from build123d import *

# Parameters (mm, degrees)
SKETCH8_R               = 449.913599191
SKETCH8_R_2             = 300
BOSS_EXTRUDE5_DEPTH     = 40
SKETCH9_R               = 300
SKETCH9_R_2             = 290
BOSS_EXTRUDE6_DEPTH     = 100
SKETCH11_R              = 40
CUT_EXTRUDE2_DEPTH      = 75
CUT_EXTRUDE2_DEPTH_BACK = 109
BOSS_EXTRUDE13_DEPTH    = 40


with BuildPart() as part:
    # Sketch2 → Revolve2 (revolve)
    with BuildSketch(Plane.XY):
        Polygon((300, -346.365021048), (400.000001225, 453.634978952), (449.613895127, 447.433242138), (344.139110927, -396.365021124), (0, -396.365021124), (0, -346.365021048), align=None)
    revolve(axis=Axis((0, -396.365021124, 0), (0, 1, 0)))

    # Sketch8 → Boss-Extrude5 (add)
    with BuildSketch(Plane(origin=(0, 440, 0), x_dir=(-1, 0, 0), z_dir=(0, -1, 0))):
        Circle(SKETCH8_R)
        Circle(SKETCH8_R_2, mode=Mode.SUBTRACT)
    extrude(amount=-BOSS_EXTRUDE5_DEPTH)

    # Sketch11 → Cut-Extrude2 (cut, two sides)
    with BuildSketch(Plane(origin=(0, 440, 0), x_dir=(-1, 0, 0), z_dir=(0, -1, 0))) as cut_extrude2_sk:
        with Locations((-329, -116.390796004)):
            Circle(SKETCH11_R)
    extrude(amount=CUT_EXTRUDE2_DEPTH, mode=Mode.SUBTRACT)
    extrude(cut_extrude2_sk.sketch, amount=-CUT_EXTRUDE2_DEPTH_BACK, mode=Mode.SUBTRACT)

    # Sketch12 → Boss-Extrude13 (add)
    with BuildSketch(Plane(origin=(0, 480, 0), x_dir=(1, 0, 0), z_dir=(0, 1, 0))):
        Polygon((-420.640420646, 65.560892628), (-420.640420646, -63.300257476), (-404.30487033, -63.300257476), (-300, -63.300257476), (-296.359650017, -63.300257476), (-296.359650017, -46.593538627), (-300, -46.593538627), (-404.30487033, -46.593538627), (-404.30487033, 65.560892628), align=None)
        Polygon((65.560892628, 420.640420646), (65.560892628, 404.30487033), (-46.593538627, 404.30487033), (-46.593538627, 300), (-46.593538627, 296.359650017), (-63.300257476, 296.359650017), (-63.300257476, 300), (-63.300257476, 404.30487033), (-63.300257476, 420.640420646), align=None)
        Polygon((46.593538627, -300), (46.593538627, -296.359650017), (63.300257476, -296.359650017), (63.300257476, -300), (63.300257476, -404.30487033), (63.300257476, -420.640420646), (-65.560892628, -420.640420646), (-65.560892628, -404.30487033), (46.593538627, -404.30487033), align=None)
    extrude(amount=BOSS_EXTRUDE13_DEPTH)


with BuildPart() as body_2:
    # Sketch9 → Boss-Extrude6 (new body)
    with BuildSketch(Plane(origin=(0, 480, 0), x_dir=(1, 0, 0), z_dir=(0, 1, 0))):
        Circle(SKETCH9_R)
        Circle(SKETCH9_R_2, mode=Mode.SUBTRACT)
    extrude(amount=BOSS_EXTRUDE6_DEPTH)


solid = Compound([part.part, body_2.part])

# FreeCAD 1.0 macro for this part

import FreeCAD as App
import Part
import Sketcher

V = App.Vector


def add_polygon(sketch, points):
    """Adds a closed chain of lines whose ends are joined by coincident constraints."""
    first, n = sketch.GeometryCount, len(points)
    for a, b in zip(points, points[1:] + points[:1]):
        sketch.addGeometry(Part.LineSegment(App.Vector(*a, 0), App.Vector(*b, 0)), False)
    for i in range(n):
        sketch.addConstraint(Sketcher.Constraint("Coincident", first + i, 2, first + (i + 1) % n, 1))

doc = App.newDocument("Part")
body = doc.addObject("PartDesign::Body", "Body")

# Sketch on XY plane
sketch1 = body.newObject("Sketcher::SketchObject", "Sketch")
sketch1.AttachmentSupport = (doc.getObject("XY_Plane"), [""])
sketch1.MapMode = "FlatFace"
add_polygon(sketch1, [(400, 454), (300, -346), (0, -346), (0, -396), (344, -396), (450, 447)])  # lines 0-5
sketch1.addConstraint([
    Sketcher.Constraint("Horizontal", 1),
    Sketcher.Constraint("Vertical", 2),
    Sketcher.Constraint("Horizontal", 3),
    Sketcher.Constraint("PointOnObject", 1, 2, -2),
    Sketcher.Constraint("Parallel", 0, 4),
    Sketcher.Constraint("Perpendicular", 4, 5),
    Sketcher.Constraint("DistanceX", 1, 2, 1, 1, 300.0),
    Sketcher.Constraint("DistanceY", 2, 2, 2, 1, 50.0),
    Sketcher.Constraint("Distance", 5, 50.0),
    Sketcher.Constraint("DistanceX", -1, 1, 5, 2, 400.000001),
    Sketcher.Constraint("DistanceY", 0, 2, 5, 2, 800.0),
    Sketcher.Constraint("DistanceY", 0, 2, -1, 1, 346.365021),
])
revolution = body.newObject("PartDesign::Revolution", "Revolution")
revolution.Profile = sketch1
revolution.ReferenceAxis = (sketch1, ["V_Axis"])
revolution.Angle = 360

# Sketch on XZ plane
sketch2 = body.newObject("Sketcher::SketchObject", "Sketch001")
sketch2.AttachmentSupport = (doc.getObject("XZ_Plane"), [""])
sketch2.MapMode = "FlatFace"
sketch2.AttachmentOffset = App.Placement(V(0, 0, -440), App.Rotation())
sketch2.addGeometry([
    Part.Circle(V(0, 0, 0), V(0, 0, 1), 450),
    Part.Circle(V(0, 0, 0), V(0, 0, 1), 300),
], False)
sketch2.addConstraint([
    Sketcher.Constraint("Coincident", 0, 3, -1, 1),
    Sketcher.Constraint("Coincident", 1, 3, -1, 1),
    Sketcher.Constraint("Diameter", 1, 600.0),
    Sketcher.Constraint("Diameter", 0, 899.827198),
])
pad1 = body.newObject("PartDesign::Pad", "Pad")
pad1.Profile = sketch2
pad1.Length = 40
pad1.Reversed = True

# Sketch on XZ plane
sketch3 = body.newObject("Sketcher::SketchObject", "Sketch002")
sketch3.AttachmentSupport = (doc.getObject("XZ_Plane"), [""])
sketch3.MapMode = "FlatFace"
sketch3.AttachmentOffset = App.Placement(V(0, 0, -440), App.Rotation())
sketch3.addGeometry(Part.Circle(V(329, 116, 0), V(0, 0, 1), 40), False)
sketch3.addConstraint([
    Sketcher.Constraint("Diameter", 0, 80.0),
    Sketcher.Constraint("DistanceX", -1, 1, 0, 3, 329.0),
    Sketcher.Constraint("DistanceY", -1, 1, 0, 3, 116.390796),
])
pocket1 = body.newObject("PartDesign::Pocket", "Pocket")
pocket1.Profile = sketch3
pocket1.Type = "TwoLengths"
pocket1.Length = 75
pocket1.Length2 = 109
pocket1.Reversed = True

# Sketch on XZ plane
sketch4 = body.newObject("Sketcher::SketchObject", "Sketch003")
sketch4.AttachmentSupport = (doc.getObject("XZ_Plane"), [""])
sketch4.MapMode = "FlatFace"
sketch4.AttachmentOffset = App.Placement(V(0, 0, -480), App.Rotation())
add_polygon(sketch4, [(-421, -66), (-421, 63), (-296, 63), (-296, 47), (-404, 47), (-404, -66)])  # lines 0-5
add_polygon(sketch4, [(66, -404), (66, -421), (-63, -421), (-63, -296), (-47, -296), (-47, -404)])  # lines 6-11
add_polygon(sketch4, [(47, 296), (47, 404), (-66, 404), (-66, 421), (63, 421), (63, 296)])  # lines 12-17
sketch4.addConstraint([
    Sketcher.Constraint("Vertical", 0),
    Sketcher.Constraint("Horizontal", 1),
    Sketcher.Constraint("Vertical", 2),
    Sketcher.Constraint("Horizontal", 3),
    Sketcher.Constraint("Vertical", 4),
    Sketcher.Constraint("Horizontal", 5),
    Sketcher.Constraint("Vertical", 6),
    Sketcher.Constraint("Horizontal", 7),
    Sketcher.Constraint("Vertical", 8),
    Sketcher.Constraint("Horizontal", 9),
    Sketcher.Constraint("Vertical", 10),
    Sketcher.Constraint("Horizontal", 11),
    Sketcher.Constraint("Vertical", 12),
    Sketcher.Constraint("Horizontal", 13),
    Sketcher.Constraint("Vertical", 14),
    Sketcher.Constraint("Horizontal", 15),
    Sketcher.Constraint("Vertical", 16),
    Sketcher.Constraint("Horizontal", 17),
    Sketcher.Constraint("Symmetric", 10, 2, 12, 2, -1, 1),
    Sketcher.Constraint("Symmetric", 6, 2, 14, 2, -1, 1),
    Sketcher.Constraint("Symmetric", 8, 2, 16, 2, -1, 1),
    Sketcher.Constraint("Equal", 15, 0),
    Sketcher.Constraint("Equal", 17, 2),
    Sketcher.Constraint("Equal", 5, 6),
    Sketcher.Constraint("Equal", 1, 8),
    Sketcher.Constraint("DistanceX", 1, 1, 1, 2, 124.280771),
    Sketcher.Constraint("DistanceX", 3, 2, 3, 1, 107.94522),
    Sketcher.Constraint("DistanceX", 7, 2, 7, 1, 128.86115),
    Sketcher.Constraint("DistanceX", 9, 1, 9, 2, 16.706719),
    Sketcher.Constraint("DistanceX", 0, 2, -1, 1, 420.640421),
    Sketcher.Constraint("DistanceY", -1, 1, 2, 2, 46.593539),
    Sketcher.Constraint("DistanceY", 6, 2, -1, 1, 420.640421),
    Sketcher.Constraint("DistanceX", 9, 2, -1, 1, 46.593539),
])
pad2 = body.newObject("PartDesign::Pad", "Pad001")
pad2.Profile = sketch4
pad2.Length = 40
pad2.Reversed = True
body2 = doc.addObject("PartDesign::Body", "Body001")

# Sketch on XZ plane
sketch5 = body2.newObject("Sketcher::SketchObject", "Sketch004")
sketch5.AttachmentSupport = (doc.getObject("XZ_Plane001"), [""])
sketch5.MapMode = "FlatFace"
sketch5.AttachmentOffset = App.Placement(V(0, 0, -480), App.Rotation())
sketch5.addGeometry([
    Part.Circle(V(0, 0, 0), V(0, 0, 1), 300),
    Part.Circle(V(0, 0, 0), V(0, 0, 1), 290),
], False)
sketch5.addConstraint([
    Sketcher.Constraint("Coincident", 0, 3, -1, 1),
    Sketcher.Constraint("Coincident", 1, 3, -1, 1),
    Sketcher.Constraint("Diameter", 0, 600.0),
    Sketcher.Constraint("Diameter", 1, 580.0),
])
pad3 = body2.newObject("PartDesign::Pad", "Pad002")
pad3.Profile = sketch5
pad3.Length = 100
pad3.Reversed = True

doc.recompute()
